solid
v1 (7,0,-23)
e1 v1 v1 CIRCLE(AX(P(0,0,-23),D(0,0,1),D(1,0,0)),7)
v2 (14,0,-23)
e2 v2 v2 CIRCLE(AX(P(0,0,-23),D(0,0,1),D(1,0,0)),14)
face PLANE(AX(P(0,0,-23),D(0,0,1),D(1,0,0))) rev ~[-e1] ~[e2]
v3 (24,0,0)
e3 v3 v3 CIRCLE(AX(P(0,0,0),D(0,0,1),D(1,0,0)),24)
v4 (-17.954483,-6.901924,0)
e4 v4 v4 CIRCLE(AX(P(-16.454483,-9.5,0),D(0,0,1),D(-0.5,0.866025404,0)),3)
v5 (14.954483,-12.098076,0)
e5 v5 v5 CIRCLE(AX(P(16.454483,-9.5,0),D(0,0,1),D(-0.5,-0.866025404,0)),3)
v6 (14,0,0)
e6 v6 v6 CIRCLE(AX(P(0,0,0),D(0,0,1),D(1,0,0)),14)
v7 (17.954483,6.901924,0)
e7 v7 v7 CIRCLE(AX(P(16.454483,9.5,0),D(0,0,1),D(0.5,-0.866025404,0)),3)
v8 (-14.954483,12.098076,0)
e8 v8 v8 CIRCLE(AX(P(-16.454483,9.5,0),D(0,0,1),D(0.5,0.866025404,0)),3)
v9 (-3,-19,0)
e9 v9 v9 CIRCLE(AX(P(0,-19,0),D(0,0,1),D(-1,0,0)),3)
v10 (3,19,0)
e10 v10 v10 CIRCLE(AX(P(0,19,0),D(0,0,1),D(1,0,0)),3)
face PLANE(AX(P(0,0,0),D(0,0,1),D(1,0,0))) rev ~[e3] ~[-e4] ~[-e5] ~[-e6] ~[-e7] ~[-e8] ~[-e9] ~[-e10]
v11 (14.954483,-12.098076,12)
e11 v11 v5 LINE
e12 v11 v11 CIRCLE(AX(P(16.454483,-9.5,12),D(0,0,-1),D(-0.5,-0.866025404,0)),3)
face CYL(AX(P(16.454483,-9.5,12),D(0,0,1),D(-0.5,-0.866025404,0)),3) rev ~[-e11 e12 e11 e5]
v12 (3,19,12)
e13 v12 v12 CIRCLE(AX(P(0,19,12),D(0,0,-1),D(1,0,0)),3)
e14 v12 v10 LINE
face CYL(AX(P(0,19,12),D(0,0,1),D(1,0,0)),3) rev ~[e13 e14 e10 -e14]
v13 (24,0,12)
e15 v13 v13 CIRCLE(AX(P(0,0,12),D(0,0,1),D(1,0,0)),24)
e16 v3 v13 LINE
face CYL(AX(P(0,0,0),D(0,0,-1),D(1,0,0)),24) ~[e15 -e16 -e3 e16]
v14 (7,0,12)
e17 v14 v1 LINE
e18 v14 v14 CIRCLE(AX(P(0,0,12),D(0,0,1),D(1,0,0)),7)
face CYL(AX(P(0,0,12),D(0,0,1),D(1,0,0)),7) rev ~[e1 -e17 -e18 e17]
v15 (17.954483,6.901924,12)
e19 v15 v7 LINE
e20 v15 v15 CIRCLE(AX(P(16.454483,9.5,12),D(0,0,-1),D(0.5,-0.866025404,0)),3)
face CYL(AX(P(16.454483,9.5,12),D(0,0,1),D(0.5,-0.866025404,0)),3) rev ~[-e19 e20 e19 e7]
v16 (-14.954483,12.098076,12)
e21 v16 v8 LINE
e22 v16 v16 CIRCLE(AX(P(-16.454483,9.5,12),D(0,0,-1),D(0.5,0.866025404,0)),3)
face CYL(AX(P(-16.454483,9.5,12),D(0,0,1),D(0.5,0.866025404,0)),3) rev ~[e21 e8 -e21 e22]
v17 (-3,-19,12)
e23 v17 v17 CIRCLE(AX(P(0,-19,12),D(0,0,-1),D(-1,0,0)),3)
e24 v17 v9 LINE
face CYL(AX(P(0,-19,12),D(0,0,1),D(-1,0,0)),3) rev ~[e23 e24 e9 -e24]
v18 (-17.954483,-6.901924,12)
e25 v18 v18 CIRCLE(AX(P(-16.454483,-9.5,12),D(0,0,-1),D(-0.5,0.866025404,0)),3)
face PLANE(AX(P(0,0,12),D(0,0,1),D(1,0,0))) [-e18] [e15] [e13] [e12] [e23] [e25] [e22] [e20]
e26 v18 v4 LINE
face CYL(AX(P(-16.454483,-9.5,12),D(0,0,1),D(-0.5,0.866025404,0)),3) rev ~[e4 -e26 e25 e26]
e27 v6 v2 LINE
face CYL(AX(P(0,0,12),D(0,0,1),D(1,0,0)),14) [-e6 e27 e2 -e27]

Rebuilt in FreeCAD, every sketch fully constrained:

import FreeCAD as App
import Part
import Sketcher
from FreeCAD import Vector

doc = App.newDocument("Part")
params = doc.addObject("Spreadsheet::Sheet", "Params")
for row, (alias, value) in enumerate([
    ("sketch1_diameter", "48 mm"),
    ("sketch1_diameter2", "28 mm"),
    ("pad1_length", "12 mm"),
    ("sketch2_diameter", "6 mm"),
    ("pocket1_length", "12 mm"),
    ("sketch3_diameter", "28 mm"),
    ("sketch3_diameter2", "14 mm"),
    ("pad2_length", "35 mm"),
], start=1):
    params.set(f"A{row}", alias)
    params.set(f"B{row}", "=" + value)
    params.setAlias(f"B{row}", alias)

body = doc.addObject("PartDesign::Body", "Body")

sketch1 = doc.addObject("Sketcher::SketchObject", "Sketch")
body.addObject(sketch1)
sketch1.AttachmentSupport = (doc.XY_Plane, [""])
sketch1.MapMode = "FlatFace"
sketch1.addGeometry([
    Part.Circle(Vector(0, 0, 0), Vector(0, 0, 1), 24),
    Part.Circle(Vector(0, 0, 0), Vector(0, 0, 1), 14),
], False)
sketch1.addConstraint([
    Sketcher.Constraint("Coincident", 0, 3, -1, 1),
    Sketcher.Constraint("Coincident", 1, 3, -1, 1),
    Sketcher.Constraint("Diameter", 0, 48.0),
    Sketcher.Constraint("Diameter", 1, 28.0),
])
sketch1.setExpression("Constraints[2]", "Params.sketch1_diameter")
sketch1.setExpression("Constraints[3]", "Params.sketch1_diameter2")
pad1 = doc.addObject("PartDesign::Pad", "Pad")
body.addObject(pad1)
pad1.Profile = sketch1
pad1.setExpression("Length", "Params.pad1_length")

sketch2 = doc.addObject("Sketcher::SketchObject", "Sketch001")
body.addObject(sketch2)
sketch2.AttachmentSupport = (doc.XY_Plane, [""])
sketch2.MapMode = "FlatFace"
sketch2.AttachmentOffset = App.Placement(Vector(0, 0, 12), App.Rotation())
sketch2.addGeometry(Part.Circle(Vector(0, 19, 0), Vector(0, 0, 1), 3), False)
sketch2.addConstraint([
    Sketcher.Constraint("PointOnObject", 0, 3, -2),
    Sketcher.Constraint("Diameter", 0, 6.0),
    Sketcher.Constraint("DistanceY", -1, 1, 0, 3, 19.0),
])
sketch2.setExpression("Constraints[1]", "Params.sketch2_diameter")
pocket1 = doc.addObject("PartDesign::Pocket", "Pocket")
body.addObject(pocket1)
pocket1.Profile = sketch2
pocket1.setExpression("Length", "Params.pocket1_length")
doc.recompute()

polarpattern = doc.addObject("PartDesign::PolarPattern", "PolarPattern")
body.addObject(polarpattern)
polarpattern.Originals = [pocket1]
polarpattern.Axis = (doc.Z_Axis, [""])
polarpattern.Angle = 360
polarpattern.Occurrences = 6
body.Tip = polarpattern

sketch3 = doc.addObject("Sketcher::SketchObject", "Sketch002")
body.addObject(sketch3)
sketch3.AttachmentSupport = (doc.XY_Plane, [""])
sketch3.MapMode = "FlatFace"
sketch3.AttachmentOffset = App.Placement(Vector(0, 0, 12), App.Rotation())
sketch3.addGeometry([
    Part.Circle(Vector(0, 0, 0), Vector(0, 0, 1), 14),
    Part.Circle(Vector(0, 0, 0), Vector(0, 0, 1), 7),
], False)
sketch3.addConstraint([
    Sketcher.Constraint("Coincident", 0, 3, -1, 1),
    Sketcher.Constraint("Coincident", 1, 3, -1, 1),
    Sketcher.Constraint("Diameter", 0, 28.0),
    Sketcher.Constraint("Diameter", 1, 14.0),
])
sketch3.setExpression("Constraints[2]", "Params.sketch3_diameter")
sketch3.setExpression("Constraints[3]", "Params.sketch3_diameter2")
pad2 = doc.addObject("PartDesign::Pad", "Pad001")
body.addObject(pad2)
pad2.Profile = sketch3
pad2.setExpression("Length", "Params.pad2_length")
pad2.Reversed = True

doc.recompute()
